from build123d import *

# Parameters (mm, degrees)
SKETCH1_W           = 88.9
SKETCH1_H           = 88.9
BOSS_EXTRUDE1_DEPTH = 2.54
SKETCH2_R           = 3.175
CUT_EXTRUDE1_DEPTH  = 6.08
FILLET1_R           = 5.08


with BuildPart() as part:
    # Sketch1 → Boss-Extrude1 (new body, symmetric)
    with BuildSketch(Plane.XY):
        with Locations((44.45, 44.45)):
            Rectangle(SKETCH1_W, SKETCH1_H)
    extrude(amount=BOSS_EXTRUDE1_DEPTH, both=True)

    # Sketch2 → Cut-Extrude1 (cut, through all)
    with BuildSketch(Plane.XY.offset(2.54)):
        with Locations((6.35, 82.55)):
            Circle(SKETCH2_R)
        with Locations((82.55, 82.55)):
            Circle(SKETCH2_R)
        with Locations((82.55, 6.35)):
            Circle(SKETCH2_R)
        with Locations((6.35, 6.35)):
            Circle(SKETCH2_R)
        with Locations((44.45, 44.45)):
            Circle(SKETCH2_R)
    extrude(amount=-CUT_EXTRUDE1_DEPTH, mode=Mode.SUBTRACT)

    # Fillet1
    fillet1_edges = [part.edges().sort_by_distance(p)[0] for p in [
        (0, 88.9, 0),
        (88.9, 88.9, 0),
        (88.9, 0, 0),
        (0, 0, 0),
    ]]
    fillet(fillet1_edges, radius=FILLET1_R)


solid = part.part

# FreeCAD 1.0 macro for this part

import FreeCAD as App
import Part
import Sketcher

V = App.Vector
Q = App.Units.Quantity


def edges_at(feature, points):
    """Names of the edges that pass closest to the given points."""
    edges = feature.Shape.Edges
    near = lambda p: min(range(len(edges)), key=lambda i: edges[i].distToShape(Part.Vertex(*p))[0])
    return sorted({f"Edge{near(p) + 1}" for p in points})

doc = App.newDocument("Part")
body = doc.addObject("PartDesign::Body", "Body")

sketch1 = doc.addObject("Sketcher::SketchObject", "Sketch")
body.addObject(sketch1)
sketch1.AttachmentSupport = (doc.XY_Plane, [""])
sketch1.MapMode = "FlatFace"
sketch1.addGeometry(Part.LineSegment(V(0, 88.9, 0), V(0, 0, 0)), False)
sketch1.addGeometry(Part.LineSegment(V(0, 0, 0), V(88.9, 0, 0)), False)
sketch1.addGeometry(Part.LineSegment(V(88.9, 0, 0), V(88.9, 88.9, 0)), False)
sketch1.addGeometry(Part.LineSegment(V(88.9, 88.9, 0), V(0, 88.9, 0)), False)
sketch1.addConstraint(Sketcher.Constraint("Coincident", 0, 2, 1, 1))
sketch1.addConstraint(Sketcher.Constraint("Coincident", 1, 2, 2, 1))
sketch1.addConstraint(Sketcher.Constraint("Coincident", 2, 2, 3, 1))
sketch1.addConstraint(Sketcher.Constraint("Coincident", 3, 2, 0, 1))
sketch1.addConstraint(Sketcher.Constraint("Vertical", 0))
sketch1.addConstraint(Sketcher.Constraint("Horizontal", 1))
sketch1.addConstraint(Sketcher.Constraint("Vertical", 2))
sketch1.addConstraint(Sketcher.Constraint("Horizontal", 3))
sketch1.addConstraint(Sketcher.Constraint("Coincident", 0, 2, -1, 1))
sketch1.addConstraint(Sketcher.Constraint("Equal", 3, 0))
sketch1.addConstraint(Sketcher.Constraint("DistanceX", 1, 1, 1, 2, Q("3.5 in")))
pad1 = doc.addObject("PartDesign::Pad", "Pad")
body.addObject(pad1)
pad1.Profile = sketch1
pad1.Length = Q("0.2 in")
pad1.Midplane = True

sketch2 = doc.addObject("Sketcher::SketchObject", "Sketch001")
body.addObject(sketch2)
sketch2.AttachmentSupport = (doc.XY_Plane, [""])
sketch2.MapMode = "FlatFace"
sketch2.AttachmentOffset = App.Placement(V(0, 0, 0.1 * 25.4), App.Rotation())
sketch2.addGeometry(Part.Circle(V(6.35, 82.55, 0), V(0, 0, 1), 3.175), False)
sketch2.addGeometry(Part.Circle(V(82.55, 82.55, 0), V(0, 0, 1), 3.175), False)
sketch2.addGeometry(Part.Circle(V(82.55, 6.35, 0), V(0, 0, 1), 3.175), False)
sketch2.addGeometry(Part.Circle(V(6.35, 6.35, 0), V(0, 0, 1), 3.175), False)
sketch2.addGeometry(Part.Circle(V(44.45, 44.45, 0), V(0, 0, 1), 3.175), False)
sketch2.addConstraint(Sketcher.Constraint("Equal", 0, 1))
sketch2.addConstraint(Sketcher.Constraint("Equal", 1, 2))
sketch2.addConstraint(Sketcher.Constraint("Equal", 2, 3))
sketch2.addConstraint(Sketcher.Constraint("Equal", 3, 4))
sketch2.addConstraint(Sketcher.Constraint("Horizontal", 0, 3, 1, 3))
sketch2.addConstraint(Sketcher.Constraint("Horizontal", 2, 3, 3, 3))
sketch2.addConstraint(Sketcher.Constraint("Vertical", 1, 3, 2, 3))
sketch2.addConstraint(Sketcher.Constraint("Vertical", 0, 3, 3, 3))
sketch2.addConstraint(Sketcher.Constraint("Diameter", 0, Q("0.25 in")))
sketch2.addConstraint(Sketcher.Constraint("DistanceX", 0, 3, 1, 3, Q("3 in")))
sketch2.addConstraint(Sketcher.Constraint("DistanceY", 2, 3, 1, 3, Q("3 in")))
sketch2.addConstraint(Sketcher.Constraint("DistanceX", 4, 3, 1, 3, Q("1.5 in")))
sketch2.addConstraint(Sketcher.Constraint("DistanceY", 4, 3, 1, 3, Q("1.5 in")))
sketch2.addConstraint(Sketcher.Constraint("DistanceX", -1, 1, 0, 3, Q("0.25 in")))
sketch2.addConstraint(Sketcher.Constraint("DistanceY", -1, 1, 0, 3, Q("3.25 in")))
pocket1 = doc.addObject("PartDesign::Pocket", "Pocket")
body.addObject(pocket1)
pocket1.Profile = sketch2
pocket1.Type = "ThroughAll"
doc.recompute()

fillet = doc.addObject("PartDesign::Fillet", "Fillet")
body.addObject(fillet)
fillet.Base = (pocket1, edges_at(pocket1, [
    (0, 88.9, 0),
    (88.9, 88.9, 0),
    (88.9, 0, 0),
    (0, 0, 0),
]))
fillet.Radius = Q("0.2 in")

doc.recompute()
